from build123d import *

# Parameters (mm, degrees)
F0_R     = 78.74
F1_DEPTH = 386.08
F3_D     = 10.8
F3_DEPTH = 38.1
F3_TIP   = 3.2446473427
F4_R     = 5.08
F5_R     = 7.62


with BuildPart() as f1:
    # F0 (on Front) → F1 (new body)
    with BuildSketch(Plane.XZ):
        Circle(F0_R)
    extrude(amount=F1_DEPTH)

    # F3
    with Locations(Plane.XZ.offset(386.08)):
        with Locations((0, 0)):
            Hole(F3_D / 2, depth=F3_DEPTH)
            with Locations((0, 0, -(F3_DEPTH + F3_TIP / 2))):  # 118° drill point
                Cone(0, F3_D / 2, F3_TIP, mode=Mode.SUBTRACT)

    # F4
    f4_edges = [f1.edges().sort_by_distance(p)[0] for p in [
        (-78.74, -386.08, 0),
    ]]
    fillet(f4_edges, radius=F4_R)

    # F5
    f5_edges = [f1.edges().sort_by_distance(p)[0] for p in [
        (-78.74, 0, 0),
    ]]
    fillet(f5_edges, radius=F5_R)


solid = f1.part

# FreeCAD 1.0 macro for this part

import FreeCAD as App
import Part
import Sketcher
Q = App.Units.Quantity


def edges_at(feature, points):
    """Names of the edges that pass closest to the given points."""
    edges = feature.Shape.Edges
    near = lambda p: min(range(len(edges)), key=lambda i: edges[i].distToShape(Part.Vertex(*p))[0])
    return sorted({f"Edge{near(p) + 1}" for p in points})

doc = App.newDocument("Part")
body = doc.addObject("PartDesign::Body", "Body")

sketch1 = body.newObject("Sketcher::SketchObject", "Sketch")
sketch1.AttachmentSupport = (doc.getObject("XZ_Plane"), [""])
sketch1.MapMode = "FlatFace"
sketch1.addGeometry(Part.Circle(App.Vector(0, 0, 0), App.Vector(0, 0, 1), 78.74), False)
sketch1.addConstraint([
    Sketcher.Constraint("Coincident", 0, 3, -1, 1),
    Sketcher.Constraint("Diameter", 0, Q("6.2 in")),
])
pad1 = body.newObject("PartDesign::Pad", "Pad")
pad1.Profile = sketch1
pad1.Length = Q("15.2 in")

sketch2 = body.newObject("Sketcher::SketchObject", "Sketch001")
sketch2.AttachmentSupport = (doc.getObject("XZ_Plane"), [""])
sketch2.MapMode = "FlatFace"
sketch2.AttachmentOffset = App.Placement(App.Vector(0, 0, 15.2 * 25.4), App.Rotation())
sketch2.addGeometry(Part.Circle(App.Vector(0, 0, 0), App.Vector(0, 0, 1), 5.4), False)
sketch2.addConstraint([
    Sketcher.Constraint("Coincident", 0, 3, -1, 1),
    Sketcher.Constraint("Diameter", 0, Q("10.8 mm")),
])
doc.recompute()
hole = body.newObject("PartDesign::Hole", "Hole")
hole.Profile = sketch2
hole.ThreadType = "None"
hole.Diameter = 10.8
hole.DepthType = "Dimension"
hole.Depth = Q("1.5 in")
hole.DrillPoint = "Angled"
hole.DrillPointAngle = 118
doc.recompute()

fillet = body.newObject("PartDesign::Fillet", "Fillet")
fillet.Base = (hole, edges_at(hole, [(-78.74, -386.08, 0)]))
fillet.Radius = Q("0.2 in")
doc.recompute()

fillet2 = body.newObject("PartDesign::Fillet", "Fillet001")
fillet2.Base = (fillet, edges_at(fillet, [(-78.74, 0, 0)]))
fillet2.Radius = Q("0.3 in")

doc.recompute()
